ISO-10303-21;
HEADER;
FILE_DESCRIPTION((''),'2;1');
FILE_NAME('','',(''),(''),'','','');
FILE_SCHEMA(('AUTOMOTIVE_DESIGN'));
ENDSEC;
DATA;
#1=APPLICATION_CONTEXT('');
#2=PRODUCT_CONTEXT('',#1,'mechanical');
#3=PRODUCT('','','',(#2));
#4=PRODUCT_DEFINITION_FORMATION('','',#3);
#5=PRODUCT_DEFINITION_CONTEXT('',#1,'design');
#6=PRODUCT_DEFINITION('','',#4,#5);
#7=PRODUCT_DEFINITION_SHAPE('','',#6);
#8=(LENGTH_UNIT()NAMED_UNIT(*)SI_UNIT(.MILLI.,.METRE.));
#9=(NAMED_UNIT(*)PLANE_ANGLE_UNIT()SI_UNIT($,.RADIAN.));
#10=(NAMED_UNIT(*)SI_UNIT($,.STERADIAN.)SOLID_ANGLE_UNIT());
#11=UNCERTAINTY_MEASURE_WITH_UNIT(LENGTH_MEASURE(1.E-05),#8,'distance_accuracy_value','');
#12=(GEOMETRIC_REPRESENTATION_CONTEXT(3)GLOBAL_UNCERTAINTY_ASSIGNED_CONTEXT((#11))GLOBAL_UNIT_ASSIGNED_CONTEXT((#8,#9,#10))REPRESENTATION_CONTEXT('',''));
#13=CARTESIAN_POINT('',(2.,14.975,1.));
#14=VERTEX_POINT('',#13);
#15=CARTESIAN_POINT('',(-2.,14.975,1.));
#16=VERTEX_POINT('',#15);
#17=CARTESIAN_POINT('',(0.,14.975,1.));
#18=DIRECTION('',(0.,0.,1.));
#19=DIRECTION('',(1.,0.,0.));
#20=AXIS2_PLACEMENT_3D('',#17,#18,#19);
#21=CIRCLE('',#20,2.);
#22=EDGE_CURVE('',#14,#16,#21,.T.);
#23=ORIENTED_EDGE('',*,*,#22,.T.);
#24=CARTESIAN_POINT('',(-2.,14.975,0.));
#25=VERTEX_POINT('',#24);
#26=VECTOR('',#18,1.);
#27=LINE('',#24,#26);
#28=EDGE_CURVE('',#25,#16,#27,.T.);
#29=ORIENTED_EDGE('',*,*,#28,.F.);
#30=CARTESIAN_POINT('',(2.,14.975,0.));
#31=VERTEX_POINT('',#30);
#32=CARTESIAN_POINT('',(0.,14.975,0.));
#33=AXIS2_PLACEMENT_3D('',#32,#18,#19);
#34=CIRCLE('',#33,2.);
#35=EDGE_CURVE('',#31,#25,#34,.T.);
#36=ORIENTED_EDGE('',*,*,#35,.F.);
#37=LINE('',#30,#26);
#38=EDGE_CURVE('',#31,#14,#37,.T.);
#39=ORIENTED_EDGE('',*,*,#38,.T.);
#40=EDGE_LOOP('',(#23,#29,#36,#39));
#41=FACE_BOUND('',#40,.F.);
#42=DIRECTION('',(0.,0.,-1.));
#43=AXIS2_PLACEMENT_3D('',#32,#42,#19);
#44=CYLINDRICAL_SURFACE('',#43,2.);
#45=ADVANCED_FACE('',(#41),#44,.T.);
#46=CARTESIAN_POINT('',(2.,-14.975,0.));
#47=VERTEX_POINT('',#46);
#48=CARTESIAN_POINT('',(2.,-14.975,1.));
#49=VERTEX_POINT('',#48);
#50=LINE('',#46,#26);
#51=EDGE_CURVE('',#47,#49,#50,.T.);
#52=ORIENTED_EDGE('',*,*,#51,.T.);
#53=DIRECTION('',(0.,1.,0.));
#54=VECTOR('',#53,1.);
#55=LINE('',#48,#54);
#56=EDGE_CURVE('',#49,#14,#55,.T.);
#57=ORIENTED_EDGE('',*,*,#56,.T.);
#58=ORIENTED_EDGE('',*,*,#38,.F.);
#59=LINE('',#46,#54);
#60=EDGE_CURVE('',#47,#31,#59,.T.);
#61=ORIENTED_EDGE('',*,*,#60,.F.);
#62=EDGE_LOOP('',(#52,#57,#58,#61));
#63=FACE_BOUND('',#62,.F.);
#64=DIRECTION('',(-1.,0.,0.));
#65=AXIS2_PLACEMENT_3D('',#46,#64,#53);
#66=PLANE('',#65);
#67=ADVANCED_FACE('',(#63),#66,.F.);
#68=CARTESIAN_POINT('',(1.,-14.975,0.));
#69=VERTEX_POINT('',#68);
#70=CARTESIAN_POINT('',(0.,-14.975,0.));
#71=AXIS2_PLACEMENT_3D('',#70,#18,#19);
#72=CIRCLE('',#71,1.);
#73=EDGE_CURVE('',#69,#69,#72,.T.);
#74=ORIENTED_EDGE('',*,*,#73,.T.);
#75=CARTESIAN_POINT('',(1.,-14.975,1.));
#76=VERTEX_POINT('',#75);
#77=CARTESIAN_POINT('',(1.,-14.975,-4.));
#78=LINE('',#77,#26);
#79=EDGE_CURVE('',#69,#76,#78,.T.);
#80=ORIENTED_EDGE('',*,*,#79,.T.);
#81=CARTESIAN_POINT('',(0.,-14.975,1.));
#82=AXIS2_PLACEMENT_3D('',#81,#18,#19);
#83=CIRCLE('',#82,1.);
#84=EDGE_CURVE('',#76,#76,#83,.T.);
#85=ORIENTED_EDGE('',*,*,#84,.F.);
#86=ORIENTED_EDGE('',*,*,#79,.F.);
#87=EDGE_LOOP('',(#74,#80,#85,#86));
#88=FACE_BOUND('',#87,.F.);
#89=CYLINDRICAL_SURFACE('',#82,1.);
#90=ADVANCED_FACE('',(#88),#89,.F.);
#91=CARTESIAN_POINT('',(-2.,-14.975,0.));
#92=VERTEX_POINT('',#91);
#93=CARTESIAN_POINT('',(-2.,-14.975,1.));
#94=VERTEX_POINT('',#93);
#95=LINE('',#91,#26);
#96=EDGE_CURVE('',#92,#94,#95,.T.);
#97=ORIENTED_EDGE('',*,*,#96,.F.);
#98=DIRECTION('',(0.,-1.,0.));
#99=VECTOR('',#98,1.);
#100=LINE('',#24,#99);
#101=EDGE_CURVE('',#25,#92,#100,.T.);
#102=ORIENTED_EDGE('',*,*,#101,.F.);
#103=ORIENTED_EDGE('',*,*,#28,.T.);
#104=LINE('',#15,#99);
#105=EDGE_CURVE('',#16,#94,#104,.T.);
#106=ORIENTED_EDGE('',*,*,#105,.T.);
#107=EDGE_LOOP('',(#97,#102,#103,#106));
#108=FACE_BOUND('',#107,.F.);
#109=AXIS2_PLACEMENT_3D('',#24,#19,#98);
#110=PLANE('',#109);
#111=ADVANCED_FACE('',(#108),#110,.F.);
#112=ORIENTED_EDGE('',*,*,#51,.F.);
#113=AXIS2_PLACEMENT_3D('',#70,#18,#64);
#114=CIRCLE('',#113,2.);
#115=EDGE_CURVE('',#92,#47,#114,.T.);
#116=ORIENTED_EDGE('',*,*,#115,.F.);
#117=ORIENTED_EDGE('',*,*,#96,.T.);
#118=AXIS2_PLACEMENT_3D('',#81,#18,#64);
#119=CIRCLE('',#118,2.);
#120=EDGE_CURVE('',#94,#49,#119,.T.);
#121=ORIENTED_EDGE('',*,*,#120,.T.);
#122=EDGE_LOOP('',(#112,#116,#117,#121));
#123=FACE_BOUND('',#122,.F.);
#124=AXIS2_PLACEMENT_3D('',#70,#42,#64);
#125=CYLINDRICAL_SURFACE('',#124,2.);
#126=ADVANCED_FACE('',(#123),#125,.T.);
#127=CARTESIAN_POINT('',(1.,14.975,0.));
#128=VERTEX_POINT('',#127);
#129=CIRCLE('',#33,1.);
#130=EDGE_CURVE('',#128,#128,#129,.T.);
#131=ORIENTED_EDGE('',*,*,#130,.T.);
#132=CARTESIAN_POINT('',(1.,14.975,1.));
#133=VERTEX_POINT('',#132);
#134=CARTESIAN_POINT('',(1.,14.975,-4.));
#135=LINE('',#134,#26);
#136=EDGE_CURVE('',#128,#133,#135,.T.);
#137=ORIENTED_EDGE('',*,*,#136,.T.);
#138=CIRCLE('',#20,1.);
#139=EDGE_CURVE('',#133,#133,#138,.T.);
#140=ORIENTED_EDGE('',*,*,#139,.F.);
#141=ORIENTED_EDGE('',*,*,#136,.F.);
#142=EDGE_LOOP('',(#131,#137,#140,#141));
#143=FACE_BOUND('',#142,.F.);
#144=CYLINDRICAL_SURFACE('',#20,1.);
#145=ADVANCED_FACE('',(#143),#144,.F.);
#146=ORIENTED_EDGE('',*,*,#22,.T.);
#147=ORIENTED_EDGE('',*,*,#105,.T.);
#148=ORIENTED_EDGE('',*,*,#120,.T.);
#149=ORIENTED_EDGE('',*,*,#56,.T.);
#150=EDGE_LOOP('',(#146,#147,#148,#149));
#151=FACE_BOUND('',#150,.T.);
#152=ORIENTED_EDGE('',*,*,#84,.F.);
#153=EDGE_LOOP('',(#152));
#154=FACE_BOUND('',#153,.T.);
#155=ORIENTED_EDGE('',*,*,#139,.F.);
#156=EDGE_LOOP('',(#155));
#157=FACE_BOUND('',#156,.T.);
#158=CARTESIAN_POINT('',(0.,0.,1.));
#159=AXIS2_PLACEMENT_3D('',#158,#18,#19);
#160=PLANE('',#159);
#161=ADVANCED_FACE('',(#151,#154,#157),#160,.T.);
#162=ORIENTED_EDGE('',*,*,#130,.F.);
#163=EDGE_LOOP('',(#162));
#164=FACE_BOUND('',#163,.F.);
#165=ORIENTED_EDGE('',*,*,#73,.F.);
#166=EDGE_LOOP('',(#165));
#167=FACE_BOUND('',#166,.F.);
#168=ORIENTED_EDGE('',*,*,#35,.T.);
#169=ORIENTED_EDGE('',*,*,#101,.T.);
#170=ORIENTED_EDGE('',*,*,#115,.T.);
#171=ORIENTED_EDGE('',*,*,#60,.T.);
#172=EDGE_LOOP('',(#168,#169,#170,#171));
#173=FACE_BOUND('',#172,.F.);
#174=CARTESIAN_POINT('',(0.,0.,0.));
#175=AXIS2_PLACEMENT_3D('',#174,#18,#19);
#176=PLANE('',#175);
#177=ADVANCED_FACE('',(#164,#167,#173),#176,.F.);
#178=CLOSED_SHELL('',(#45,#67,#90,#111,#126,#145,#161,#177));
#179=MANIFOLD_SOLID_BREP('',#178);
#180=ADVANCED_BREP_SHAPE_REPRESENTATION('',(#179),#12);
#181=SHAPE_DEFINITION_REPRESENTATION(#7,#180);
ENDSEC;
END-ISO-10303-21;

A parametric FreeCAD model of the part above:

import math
import FreeCAD as App
import Part
import Sketcher

doc = App.newDocument("Part")
body = doc.addObject("PartDesign::Body", "Body")

# Sketch on XY plane
sketch1 = body.newObject("Sketcher::SketchObject", "Sketch")
sketch1.AttachmentSupport = (doc.getObject("XY_Plane"), [""])
sketch1.MapMode = "FlatFace"
sketch1.addGeometry([
    Part.ArcOfCircle(Part.Circle(App.Vector(0, -15, 0), App.Vector(0, 0, 1), 2), math.radians(180), math.radians(360)),
    Part.LineSegment(App.Vector(2, -15, 0), App.Vector(2, 15, 0)),
    Part.ArcOfCircle(Part.Circle(App.Vector(0, 15, 0), App.Vector(0, 0, 1), 2), math.radians(0), math.radians(180)),
    Part.LineSegment(App.Vector(-2, 15, 0), App.Vector(-2, -15, 0)),
], False)
sketch1.addConstraint([
    Sketcher.Constraint("Tangent", 0, 2, 1, 1),
    Sketcher.Constraint("Tangent", 1, 2, 2, 1),
    Sketcher.Constraint("Tangent", 2, 2, 3, 1),
    Sketcher.Constraint("Tangent", 3, 2, 0, 1),
    Sketcher.Constraint("Vertical", 1),
    Sketcher.Constraint("Vertical", 3),
    Sketcher.Constraint("Symmetric", 0, 3, 2, 3, -1, 1),
    Sketcher.Constraint("Radius", 0, 2.0),
    Sketcher.Constraint("DistanceY", 1, 1, 1, 2, 29.95),
])
pad1 = body.newObject("PartDesign::Pad", "Pad")
pad1.Profile = sketch1
pad1.Length = 1

# Sketch on XY plane
sketch2 = body.newObject("Sketcher::SketchObject", "Sketch001")
sketch2.AttachmentSupport = (doc.getObject("XY_Plane"), [""])
sketch2.MapMode = "FlatFace"
sketch2.AttachmentOffset = App.Placement(App.Vector(0, 0, 1), App.Rotation())
sketch2.addGeometry([
    Part.Circle(App.Vector(0, 15, 0), App.Vector(0, 0, 1), 0.8),
    Part.Circle(App.Vector(0, -15, 0), App.Vector(0, 0, 1), 0.8),
], False)
sketch2.addConstraint([
    Sketcher.Constraint("Equal", 0, 1),
    Sketcher.Constraint("Symmetric", 0, 3, 1, 3, -1, 1),
    Sketcher.Constraint("PointOnObject", 0, 3, -2),
    Sketcher.Constraint("Diameter", 0, 1.5),
    Sketcher.Constraint("DistanceY", 1, 3, 0, 3, 29.95),
])
pad2 = body.newObject("PartDesign::Pad", "Pad001")
pad2.Profile = sketch2
pad2.Length = 1

# Sketch on XY plane
sketch3 = body.newObject("Sketcher::SketchObject", "Sketch002")
sketch3.AttachmentSupport = (doc.getObject("XY_Plane"), [""])
sketch3.MapMode = "FlatFace"
sketch3.AttachmentOffset = App.Placement(App.Vector(0, 0, 1), App.Rotation())
sketch3.addGeometry([
    Part.Circle(App.Vector(0, 15, 0), App.Vector(0, 0, 1), 1),
    Part.Circle(App.Vector(0, -15, 0), App.Vector(0, 0, 1), 1),
], False)
sketch3.addConstraint([
    Sketcher.Constraint("Equal", 0, 1),
    Sketcher.Constraint("Symmetric", 0, 3, 1, 3, -1, 1),
    Sketcher.Constraint("PointOnObject", 0, 3, -2),
    Sketcher.Constraint("Diameter", 0, 2.0),
    Sketcher.Constraint("DistanceY", 1, 3, 0, 3, 29.95),
])
pocket1 = body.newObject("PartDesign::Pocket", "Pocket")
pocket1.Profile = sketch3
pocket1.Length = 10
pocket1.Midplane = True

doc.recompute()
